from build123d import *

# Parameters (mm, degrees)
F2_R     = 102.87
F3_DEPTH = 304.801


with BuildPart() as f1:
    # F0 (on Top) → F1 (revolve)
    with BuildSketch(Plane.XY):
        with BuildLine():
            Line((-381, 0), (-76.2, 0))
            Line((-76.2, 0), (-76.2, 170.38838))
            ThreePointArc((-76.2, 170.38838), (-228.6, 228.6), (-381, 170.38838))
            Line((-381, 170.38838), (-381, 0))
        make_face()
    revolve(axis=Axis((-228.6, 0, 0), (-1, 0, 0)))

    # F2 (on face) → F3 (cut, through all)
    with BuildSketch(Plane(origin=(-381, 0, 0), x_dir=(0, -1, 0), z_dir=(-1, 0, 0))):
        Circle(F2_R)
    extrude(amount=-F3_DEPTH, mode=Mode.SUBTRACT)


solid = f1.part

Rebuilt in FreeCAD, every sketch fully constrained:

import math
import FreeCAD as App
import Part
import Sketcher
from FreeCAD import Vector
Q = App.Units.Quantity

doc = App.newDocument("Part")
body = doc.addObject("PartDesign::Body", "Body")

# Sketch on XY plane
sketch1 = doc.addObject("Sketcher::SketchObject", "Sketch")
body.addObject(sketch1)
sketch1.AttachmentSupport = (doc.XY_Plane, [""])
sketch1.MapMode = "FlatFace"
sketch1.addGeometry(Part.LineSegment(Vector(-381, 0, 0), Vector(-76, 0, 0)), False)
sketch1.addGeometry(Part.LineSegment(Vector(-76, 0, 0), Vector(-76, 170, 0)), False)
sketch1.addGeometry(Part.ArcOfCircle(Part.Circle(Vector(-229, 0, 0), Vector(0, 0, 1), 229), math.radians(48), math.radians(132)), False)
sketch1.addGeometry(Part.LineSegment(Vector(-381, 170, 0), Vector(-381, 0, 0)), False)
sketch1.addConstraint(Sketcher.Constraint("Coincident", 0, 2, 1, 1))
sketch1.addConstraint(Sketcher.Constraint("Coincident", 1, 2, 2, 1))
sketch1.addConstraint(Sketcher.Constraint("Coincident", 2, 2, 3, 1))
sketch1.addConstraint(Sketcher.Constraint("Coincident", 3, 2, 0, 1))
sketch1.addConstraint(Sketcher.Constraint("Horizontal", 0))
sketch1.addConstraint(Sketcher.Constraint("Vertical", 1))
sketch1.addConstraint(Sketcher.Constraint("Vertical", 3))
sketch1.addConstraint(Sketcher.Constraint("PointOnObject", 2, 3, -1))
sketch1.addConstraint(Sketcher.Constraint("PointOnObject", 0, 2, -1))
sketch1.addConstraint(Sketcher.Constraint("Horizontal", 1, 2, 2, 2))
sketch1.addConstraint(Sketcher.Constraint("Radius", 2, Q("9 in")))
sketch1.addConstraint(Sketcher.Constraint("DistanceX", 0, 1, 0, 2, Q("12 in")))
sketch1.addConstraint(Sketcher.Constraint("DistanceX", 2, 3, -1, 1, Q("9 in")))
revolution = doc.addObject("PartDesign::Revolution", "Revolution")
body.addObject(revolution)
revolution.Profile = sketch1
revolution.ReferenceAxis = (sketch1, ["H_Axis"])
revolution.Angle = 360

# Sketch on YZ plane
sketch2 = doc.addObject("Sketcher::SketchObject", "Sketch001")
body.addObject(sketch2)
sketch2.AttachmentSupport = (doc.YZ_Plane, [""])
sketch2.MapMode = "FlatFace"
sketch2.AttachmentOffset = App.Placement(Vector(0, 0, -15 * 25.4), App.Rotation())
sketch2.addGeometry(Part.Circle(Vector(0, 0, 0), Vector(0, 0, 1), 103), False)
sketch2.addConstraint(Sketcher.Constraint("Coincident", 0, 3, -1, 1))
sketch2.addConstraint(Sketcher.Constraint("Diameter", 0, Q("8.1 in")))
pocket1 = doc.addObject("PartDesign::Pocket", "Pocket")
body.addObject(pocket1)
pocket1.Profile = sketch2
pocket1.Type = "ThroughAll"
pocket1.Reversed = True

doc.recompute()
